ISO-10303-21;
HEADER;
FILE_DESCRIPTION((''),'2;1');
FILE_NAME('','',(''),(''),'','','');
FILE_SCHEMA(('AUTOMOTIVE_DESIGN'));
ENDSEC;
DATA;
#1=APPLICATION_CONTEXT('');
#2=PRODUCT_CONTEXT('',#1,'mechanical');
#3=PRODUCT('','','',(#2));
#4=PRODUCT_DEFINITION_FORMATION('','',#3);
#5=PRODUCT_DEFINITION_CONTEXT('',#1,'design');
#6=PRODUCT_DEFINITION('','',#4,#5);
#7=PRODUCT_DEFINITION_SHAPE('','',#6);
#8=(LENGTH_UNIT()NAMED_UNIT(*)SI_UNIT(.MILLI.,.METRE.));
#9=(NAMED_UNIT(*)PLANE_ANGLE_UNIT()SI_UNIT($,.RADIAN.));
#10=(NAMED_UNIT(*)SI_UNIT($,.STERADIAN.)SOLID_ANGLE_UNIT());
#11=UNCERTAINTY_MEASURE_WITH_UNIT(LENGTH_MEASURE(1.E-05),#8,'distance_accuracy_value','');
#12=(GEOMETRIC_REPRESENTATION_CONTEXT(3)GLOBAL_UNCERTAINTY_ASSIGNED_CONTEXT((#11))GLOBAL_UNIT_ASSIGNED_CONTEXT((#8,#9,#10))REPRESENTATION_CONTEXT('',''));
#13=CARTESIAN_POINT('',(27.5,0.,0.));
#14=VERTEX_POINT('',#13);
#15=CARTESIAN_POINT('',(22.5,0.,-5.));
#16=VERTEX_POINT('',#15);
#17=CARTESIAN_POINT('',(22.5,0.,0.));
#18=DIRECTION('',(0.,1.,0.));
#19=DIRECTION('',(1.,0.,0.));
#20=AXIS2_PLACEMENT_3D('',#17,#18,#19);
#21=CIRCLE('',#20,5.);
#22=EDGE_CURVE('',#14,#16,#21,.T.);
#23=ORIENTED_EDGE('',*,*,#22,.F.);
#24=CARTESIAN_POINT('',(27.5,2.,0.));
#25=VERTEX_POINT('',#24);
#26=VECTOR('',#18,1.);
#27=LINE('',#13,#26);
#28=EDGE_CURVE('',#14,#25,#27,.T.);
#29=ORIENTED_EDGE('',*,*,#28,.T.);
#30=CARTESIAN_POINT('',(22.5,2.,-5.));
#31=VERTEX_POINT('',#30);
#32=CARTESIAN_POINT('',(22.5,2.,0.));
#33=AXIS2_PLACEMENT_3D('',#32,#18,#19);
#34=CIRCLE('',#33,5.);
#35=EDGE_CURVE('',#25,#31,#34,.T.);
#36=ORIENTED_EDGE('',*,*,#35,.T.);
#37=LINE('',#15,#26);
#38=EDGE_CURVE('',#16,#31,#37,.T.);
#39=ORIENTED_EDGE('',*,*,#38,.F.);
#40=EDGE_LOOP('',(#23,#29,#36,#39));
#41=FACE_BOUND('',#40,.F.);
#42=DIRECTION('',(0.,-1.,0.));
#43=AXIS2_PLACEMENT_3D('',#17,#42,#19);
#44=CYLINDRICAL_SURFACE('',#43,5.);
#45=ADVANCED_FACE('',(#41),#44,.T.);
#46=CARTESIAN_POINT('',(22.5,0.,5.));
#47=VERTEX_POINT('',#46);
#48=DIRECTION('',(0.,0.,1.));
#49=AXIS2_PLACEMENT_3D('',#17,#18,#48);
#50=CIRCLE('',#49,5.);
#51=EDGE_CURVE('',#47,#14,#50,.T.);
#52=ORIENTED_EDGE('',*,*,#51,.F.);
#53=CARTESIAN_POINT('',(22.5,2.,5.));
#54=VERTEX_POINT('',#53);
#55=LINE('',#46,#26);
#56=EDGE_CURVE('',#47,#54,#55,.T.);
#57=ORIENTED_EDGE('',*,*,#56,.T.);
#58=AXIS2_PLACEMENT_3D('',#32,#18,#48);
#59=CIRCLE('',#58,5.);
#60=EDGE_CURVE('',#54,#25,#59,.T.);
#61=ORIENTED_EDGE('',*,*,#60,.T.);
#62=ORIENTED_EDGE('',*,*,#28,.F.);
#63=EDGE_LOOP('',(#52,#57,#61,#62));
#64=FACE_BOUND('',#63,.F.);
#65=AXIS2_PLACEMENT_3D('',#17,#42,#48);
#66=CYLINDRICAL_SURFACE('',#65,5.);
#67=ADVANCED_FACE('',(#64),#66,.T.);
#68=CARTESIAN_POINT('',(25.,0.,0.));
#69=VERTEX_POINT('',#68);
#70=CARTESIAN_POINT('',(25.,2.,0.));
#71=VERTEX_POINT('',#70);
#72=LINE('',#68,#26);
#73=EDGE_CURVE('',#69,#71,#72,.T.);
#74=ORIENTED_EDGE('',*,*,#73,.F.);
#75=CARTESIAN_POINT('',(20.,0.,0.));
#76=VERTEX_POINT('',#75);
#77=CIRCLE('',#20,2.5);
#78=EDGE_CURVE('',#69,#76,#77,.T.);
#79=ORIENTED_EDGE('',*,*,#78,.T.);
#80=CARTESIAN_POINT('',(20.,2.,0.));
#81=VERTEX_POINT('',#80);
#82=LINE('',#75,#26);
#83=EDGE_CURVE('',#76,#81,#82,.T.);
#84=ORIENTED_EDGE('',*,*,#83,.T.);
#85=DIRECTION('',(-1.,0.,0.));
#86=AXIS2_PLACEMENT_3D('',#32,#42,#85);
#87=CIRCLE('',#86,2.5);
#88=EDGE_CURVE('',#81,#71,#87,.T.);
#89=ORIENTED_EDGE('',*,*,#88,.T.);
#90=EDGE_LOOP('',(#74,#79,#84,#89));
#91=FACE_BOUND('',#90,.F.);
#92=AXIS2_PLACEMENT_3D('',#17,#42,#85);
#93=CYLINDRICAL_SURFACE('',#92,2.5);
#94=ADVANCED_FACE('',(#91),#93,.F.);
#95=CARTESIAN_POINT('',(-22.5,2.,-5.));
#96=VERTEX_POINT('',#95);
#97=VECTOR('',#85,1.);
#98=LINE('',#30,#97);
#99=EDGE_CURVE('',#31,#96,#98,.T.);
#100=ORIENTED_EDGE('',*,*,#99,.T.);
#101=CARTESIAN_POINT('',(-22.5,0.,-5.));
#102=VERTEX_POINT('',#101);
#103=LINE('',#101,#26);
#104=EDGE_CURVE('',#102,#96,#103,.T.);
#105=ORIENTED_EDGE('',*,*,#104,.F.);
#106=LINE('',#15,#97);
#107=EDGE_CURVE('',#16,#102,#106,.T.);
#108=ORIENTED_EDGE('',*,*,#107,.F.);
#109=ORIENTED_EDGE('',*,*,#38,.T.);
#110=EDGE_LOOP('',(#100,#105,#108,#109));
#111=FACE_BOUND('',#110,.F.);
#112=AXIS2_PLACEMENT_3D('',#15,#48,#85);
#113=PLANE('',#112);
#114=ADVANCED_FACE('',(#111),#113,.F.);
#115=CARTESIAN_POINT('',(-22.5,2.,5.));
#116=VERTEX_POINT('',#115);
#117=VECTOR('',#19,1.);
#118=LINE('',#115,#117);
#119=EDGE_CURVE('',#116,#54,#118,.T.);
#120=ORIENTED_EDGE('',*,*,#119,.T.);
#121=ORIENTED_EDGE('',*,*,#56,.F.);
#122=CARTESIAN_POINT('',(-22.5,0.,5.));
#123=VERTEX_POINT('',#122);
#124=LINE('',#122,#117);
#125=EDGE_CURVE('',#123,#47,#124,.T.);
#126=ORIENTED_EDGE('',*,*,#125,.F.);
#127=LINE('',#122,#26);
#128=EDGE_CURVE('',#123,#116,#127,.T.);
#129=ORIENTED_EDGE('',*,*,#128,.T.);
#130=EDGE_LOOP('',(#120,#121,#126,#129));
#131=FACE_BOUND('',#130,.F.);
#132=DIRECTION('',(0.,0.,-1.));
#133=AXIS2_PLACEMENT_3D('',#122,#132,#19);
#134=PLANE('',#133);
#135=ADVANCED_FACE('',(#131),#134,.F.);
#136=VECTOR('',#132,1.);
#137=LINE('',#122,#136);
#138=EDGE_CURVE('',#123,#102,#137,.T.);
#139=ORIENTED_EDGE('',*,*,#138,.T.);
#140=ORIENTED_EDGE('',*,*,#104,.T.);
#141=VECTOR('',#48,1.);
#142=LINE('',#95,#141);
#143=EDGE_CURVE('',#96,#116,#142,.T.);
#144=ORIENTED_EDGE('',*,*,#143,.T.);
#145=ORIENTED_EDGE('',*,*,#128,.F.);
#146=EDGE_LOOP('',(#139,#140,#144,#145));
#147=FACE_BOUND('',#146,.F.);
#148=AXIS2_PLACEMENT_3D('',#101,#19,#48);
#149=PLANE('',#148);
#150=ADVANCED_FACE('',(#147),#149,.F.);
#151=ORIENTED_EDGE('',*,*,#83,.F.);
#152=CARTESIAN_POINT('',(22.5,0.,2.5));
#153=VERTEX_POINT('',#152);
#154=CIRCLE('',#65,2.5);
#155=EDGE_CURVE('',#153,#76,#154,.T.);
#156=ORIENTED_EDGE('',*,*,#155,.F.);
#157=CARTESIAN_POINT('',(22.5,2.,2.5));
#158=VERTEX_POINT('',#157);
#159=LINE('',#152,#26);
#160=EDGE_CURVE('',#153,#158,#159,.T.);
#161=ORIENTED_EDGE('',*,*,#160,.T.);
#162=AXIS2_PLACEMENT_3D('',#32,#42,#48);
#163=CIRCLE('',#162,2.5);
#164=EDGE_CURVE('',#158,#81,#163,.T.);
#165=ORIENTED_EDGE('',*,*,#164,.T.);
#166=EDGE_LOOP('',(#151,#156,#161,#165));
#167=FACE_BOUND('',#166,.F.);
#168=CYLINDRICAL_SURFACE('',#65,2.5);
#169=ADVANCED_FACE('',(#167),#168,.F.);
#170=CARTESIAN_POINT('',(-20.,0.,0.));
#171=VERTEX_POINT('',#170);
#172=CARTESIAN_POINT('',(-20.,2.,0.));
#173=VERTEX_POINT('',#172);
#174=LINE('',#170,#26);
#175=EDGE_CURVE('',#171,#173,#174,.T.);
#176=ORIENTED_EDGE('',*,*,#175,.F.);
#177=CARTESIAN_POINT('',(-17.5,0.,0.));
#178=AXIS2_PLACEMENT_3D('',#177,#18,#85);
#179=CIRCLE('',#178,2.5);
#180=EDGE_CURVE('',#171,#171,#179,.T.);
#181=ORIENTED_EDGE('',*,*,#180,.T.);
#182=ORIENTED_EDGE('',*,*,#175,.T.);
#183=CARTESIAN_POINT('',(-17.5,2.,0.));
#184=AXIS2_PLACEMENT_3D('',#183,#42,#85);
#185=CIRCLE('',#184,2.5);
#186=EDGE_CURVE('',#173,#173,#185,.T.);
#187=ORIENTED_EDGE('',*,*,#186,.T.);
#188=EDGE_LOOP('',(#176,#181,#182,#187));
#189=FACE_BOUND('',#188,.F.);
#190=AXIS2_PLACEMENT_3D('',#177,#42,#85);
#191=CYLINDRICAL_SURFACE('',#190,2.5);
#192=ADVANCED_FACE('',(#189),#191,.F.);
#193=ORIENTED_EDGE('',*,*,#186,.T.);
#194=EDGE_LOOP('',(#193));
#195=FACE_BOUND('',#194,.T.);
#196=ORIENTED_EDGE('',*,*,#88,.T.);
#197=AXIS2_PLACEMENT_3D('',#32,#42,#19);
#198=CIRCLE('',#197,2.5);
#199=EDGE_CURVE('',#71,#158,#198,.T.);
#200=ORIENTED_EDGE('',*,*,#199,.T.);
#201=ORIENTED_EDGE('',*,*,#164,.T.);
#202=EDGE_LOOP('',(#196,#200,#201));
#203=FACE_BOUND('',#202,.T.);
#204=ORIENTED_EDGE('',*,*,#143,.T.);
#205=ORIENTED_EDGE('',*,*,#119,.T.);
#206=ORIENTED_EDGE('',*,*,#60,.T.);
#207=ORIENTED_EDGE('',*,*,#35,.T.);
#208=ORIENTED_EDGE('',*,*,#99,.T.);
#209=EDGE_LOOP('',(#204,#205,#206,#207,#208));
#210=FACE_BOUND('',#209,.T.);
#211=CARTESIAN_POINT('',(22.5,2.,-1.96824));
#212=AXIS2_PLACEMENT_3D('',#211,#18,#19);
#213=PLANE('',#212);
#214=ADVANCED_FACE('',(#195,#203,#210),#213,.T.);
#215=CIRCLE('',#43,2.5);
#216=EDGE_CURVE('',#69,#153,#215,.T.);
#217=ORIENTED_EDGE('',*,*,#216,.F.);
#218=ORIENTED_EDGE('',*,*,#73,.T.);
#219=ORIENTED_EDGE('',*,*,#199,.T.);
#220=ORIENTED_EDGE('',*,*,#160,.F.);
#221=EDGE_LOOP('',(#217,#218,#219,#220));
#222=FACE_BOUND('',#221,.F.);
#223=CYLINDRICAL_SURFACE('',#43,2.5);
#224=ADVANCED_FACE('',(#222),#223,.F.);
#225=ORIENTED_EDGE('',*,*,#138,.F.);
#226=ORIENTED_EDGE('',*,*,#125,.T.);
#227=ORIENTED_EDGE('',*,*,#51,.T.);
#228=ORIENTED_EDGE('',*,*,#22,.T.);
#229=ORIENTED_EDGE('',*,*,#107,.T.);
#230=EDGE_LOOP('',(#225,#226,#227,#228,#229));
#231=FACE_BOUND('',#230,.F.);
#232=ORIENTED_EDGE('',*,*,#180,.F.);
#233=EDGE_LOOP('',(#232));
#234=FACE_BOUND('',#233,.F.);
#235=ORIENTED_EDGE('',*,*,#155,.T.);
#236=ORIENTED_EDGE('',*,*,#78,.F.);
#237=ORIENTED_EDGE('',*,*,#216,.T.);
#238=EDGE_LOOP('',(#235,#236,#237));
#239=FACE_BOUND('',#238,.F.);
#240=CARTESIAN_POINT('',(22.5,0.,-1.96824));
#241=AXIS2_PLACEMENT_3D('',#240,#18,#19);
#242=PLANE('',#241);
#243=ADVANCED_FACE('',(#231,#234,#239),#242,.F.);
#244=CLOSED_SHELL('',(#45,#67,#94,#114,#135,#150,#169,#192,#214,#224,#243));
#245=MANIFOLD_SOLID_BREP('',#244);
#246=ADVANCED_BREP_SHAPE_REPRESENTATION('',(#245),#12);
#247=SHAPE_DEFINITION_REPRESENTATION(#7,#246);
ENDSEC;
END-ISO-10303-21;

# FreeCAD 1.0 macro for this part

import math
import FreeCAD as App
import Part
import Sketcher
Q = App.Units.Quantity

doc = App.newDocument("Part")
body = doc.addObject("PartDesign::Body", "Body")

sketch1 = body.newObject("Sketcher::SketchObject", "Sketch")
sketch1.AttachmentSupport = (doc.getObject("XZ_Plane"), [""])
sketch1.MapMode = "FlatFace"
sketch1.addGeometry(Part.LineSegment(App.Vector(25, 0, 0), App.Vector(27.5, 0, 0)), False)
sketch1.addGeometry(Part.ArcOfCircle(Part.Circle(App.Vector(22.5, 0, 0), App.Vector(0, 0, 1), 5), math.radians(180), math.radians(360)), False)
sketch1.addGeometry(Part.LineSegment(App.Vector(17.5, 0, 0), App.Vector(20, 0, 0)), False)
sketch1.addGeometry(Part.ArcOfCircle(Part.Circle(App.Vector(22.5, 0, 0), App.Vector(0, 0, 1), 2.5), math.radians(180), math.radians(360)), False)
sketch1.addConstraint(Sketcher.Constraint("Coincident", 0, 2, 1, 2))
sketch1.addConstraint(Sketcher.Constraint("Coincident", 1, 1, 2, 1))
sketch1.addConstraint(Sketcher.Constraint("Coincident", 2, 2, 3, 1))
sketch1.addConstraint(Sketcher.Constraint("Coincident", 3, 2, 0, 1))
sketch1.addConstraint(Sketcher.Constraint("Horizontal", 0))
sketch1.addConstraint(Sketcher.Constraint("Horizontal", 2))
sketch1.addConstraint(Sketcher.Constraint("Coincident", 3, 3, 1, 3))
sketch1.addConstraint(Sketcher.Constraint("PointOnObject", 1, 3, -1))
sketch1.addConstraint(Sketcher.Constraint("PointOnObject", 0, 2, -1))
sketch1.addConstraint(Sketcher.Constraint("PointOnObject", 1, 1, -1))
sketch1.addConstraint(Sketcher.Constraint("Radius", 1, Q("5 mm")))
sketch1.addConstraint(Sketcher.Constraint("Radius", 3, Q("2.5 mm")))
sketch1.addConstraint(Sketcher.Constraint("DistanceX", -1, 1, 2, 2, Q("20 mm")))
pad1 = body.newObject("PartDesign::Pad", "Pad")
pad1.Profile = sketch1
pad1.Length = 2
pad1.Reversed = True
body2 = doc.addObject("PartDesign::Body", "Body001")

sketch2 = body2.newObject("Sketcher::SketchObject", "Sketch001")
sketch2.AttachmentSupport = (doc.getObject("XZ_Plane001"), [""])
sketch2.MapMode = "FlatFace"
sketch2.addGeometry(Part.LineSegment(App.Vector(-22.5, 5, 0), App.Vector(22.5, 5, 0)), False)
sketch2.addGeometry(Part.ArcOfCircle(Part.Circle(App.Vector(22.5, 0, 0), App.Vector(0, 0, 1), 5), math.radians(90), math.radians(180)), False)
sketch2.addGeometry(Part.LineSegment(App.Vector(17.5, 0, 0), App.Vector(-15, 0, 0)), False)
sketch2.addGeometry(Part.ArcOfCircle(Part.Circle(App.Vector(-17.5, 0, 0), App.Vector(0, 0, 1), 2.5), math.radians(0), math.radians(180)), False)
sketch2.addGeometry(Part.LineSegment(App.Vector(-20, 0, 0), App.Vector(-22.5, 0, 0)), False)
sketch2.addGeometry(Part.LineSegment(App.Vector(-22.5, 0, 0), App.Vector(-22.5, 5, 0)), False)
sketch2.addConstraint(Sketcher.Constraint("Tangent", 0, 2, 1, 1))
sketch2.addConstraint(Sketcher.Constraint("Coincident", 1, 2, 2, 1))
sketch2.addConstraint(Sketcher.Constraint("Coincident", 2, 2, 3, 1))
sketch2.addConstraint(Sketcher.Constraint("Coincident", 3, 2, 4, 1))
sketch2.addConstraint(Sketcher.Constraint("Coincident", 4, 2, 5, 1))
sketch2.addConstraint(Sketcher.Constraint("Coincident", 5, 2, 0, 1))
sketch2.addConstraint(Sketcher.Constraint("Horizontal", 0))
sketch2.addConstraint(Sketcher.Constraint("Horizontal", 2))
sketch2.addConstraint(Sketcher.Constraint("Horizontal", 4))
sketch2.addConstraint(Sketcher.Constraint("Vertical", 5))
sketch2.addConstraint(Sketcher.Constraint("PointOnObject", 1, 3, -1))
sketch2.addConstraint(Sketcher.Constraint("PointOnObject", 3, 3, -1))
sketch2.addConstraint(Sketcher.Constraint("PointOnObject", 1, 2, -1))
sketch2.addConstraint(Sketcher.Constraint("PointOnObject", 3, 2, -1))
sketch2.addConstraint(Sketcher.Constraint("Radius", 1, Q("5 mm")))
sketch2.addConstraint(Sketcher.Constraint("Radius", 3, Q("2.5 mm")))
sketch2.addConstraint(Sketcher.Constraint("DistanceX", 0, 1, 0, 2, Q("45 mm")))
sketch2.addConstraint(Sketcher.Constraint("DistanceX", 2, 2, 2, 1, Q("32.5 mm")))
sketch2.addConstraint(Sketcher.Constraint("DistanceX", 2, 2, -1, 1, Q("15 mm")))
pad2 = body2.newObject("PartDesign::Pad", "Pad001")
pad2.Profile = sketch2
pad2.Length = 2
pad2.Reversed = True
body.AllowCompound = True
doc.recompute()

boolean = body.newObject("PartDesign::Boolean", "Boolean")
boolean.Type = "Fuse"
boolean.addObjects([body2])

sketch3 = body.newObject("Sketcher::SketchObject", "Sketch002")
sketch3.AttachmentSupport = (doc.getObject("XZ_Plane"), [""])
sketch3.MapMode = "FlatFace"
sketch3.addGeometry(Part.LineSegment(App.Vector(-15, 0, 0), App.Vector(17.5, 0, 0)), False)
sketch3.addGeometry(Part.ArcOfCircle(Part.Circle(App.Vector(22.5, 0, 0), App.Vector(0, 0, 1), 5), math.radians(90), math.radians(180)), False)
sketch3.addGeometry(Part.ArcOfCircle(Part.Circle(App.Vector(22.5, 0, 0), App.Vector(0, 0, 1), 5), math.radians(0), math.radians(90)), False)
sketch3.addGeometry(Part.ArcOfCircle(Part.Circle(App.Vector(22.5, 0, 0), App.Vector(0, 0, 1), 5), math.radians(-90), math.radians(0)), False)
sketch3.addGeometry(Part.LineSegment(App.Vector(22.5, -5, 0), App.Vector(-22.5, -5, 0)), False)
sketch3.addGeometry(Part.LineSegment(App.Vector(-22.5, -5, 0), App.Vector(-22.5, 0, 0)), False)
sketch3.addGeometry(Part.LineSegment(App.Vector(-22.5, 0, 0), App.Vector(-20, 0, 0)), False)
sketch3.addGeometry(Part.ArcOfCircle(Part.Circle(App.Vector(-17.5, 0, 0), App.Vector(0, 0, 1), 2.5), math.radians(180), math.radians(360)), False)
sketch3.addGeometry(Part.ArcOfCircle(Part.Circle(App.Vector(22.5, 0, 0), App.Vector(0, 0, 1), 2.5), math.radians(-90), math.radians(0)), False)
sketch3.addGeometry(Part.ArcOfCircle(Part.Circle(App.Vector(22.5, 0, 0), App.Vector(0, 0, 1), 2.5), math.radians(0), math.radians(90)), False)
sketch3.addGeometry(Part.ArcOfCircle(Part.Circle(App.Vector(22.5, 0, 0), App.Vector(0, 0, 1), 2.5), math.radians(90), math.radians(180)), False)
sketch3.addGeometry(Part.ArcOfCircle(Part.Circle(App.Vector(22.5, 0, 0), App.Vector(0, 0, 1), 2.5), math.radians(180), math.radians(270)), False)
sketch3.addConstraint(Sketcher.Constraint("Coincident", 0, 2, 1, 2))
sketch3.addConstraint(Sketcher.Constraint("Tangent", 1, 1, 2, 2))
sketch3.addConstraint(Sketcher.Constraint("Tangent", 2, 1, 3, 2))
sketch3.addConstraint(Sketcher.Constraint("Tangent", 3, 1, 4, 1))
sketch3.addConstraint(Sketcher.Constraint("Coincident", 4, 2, 5, 1))
sketch3.addConstraint(Sketcher.Constraint("Coincident", 5, 2, 6, 1))
sketch3.addConstraint(Sketcher.Constraint("Coincident", 6, 2, 7, 1))
sketch3.addConstraint(Sketcher.Constraint("Coincident", 7, 2, 0, 1))
sketch3.addConstraint(Sketcher.Constraint("Tangent", 8, 2, 9, 1))
sketch3.addConstraint(Sketcher.Constraint("Tangent", 9, 2, 10, 1))
sketch3.addConstraint(Sketcher.Constraint("Tangent", 10, 2, 11, 1))
sketch3.addConstraint(Sketcher.Constraint("Tangent", 11, 2, 8, 1))
sketch3.addConstraint(Sketcher.Constraint("Horizontal", 0))
sketch3.addConstraint(Sketcher.Constraint("Horizontal", 4))
sketch3.addConstraint(Sketcher.Constraint("Vertical", 5))
sketch3.addConstraint(Sketcher.Constraint("Horizontal", 6))
sketch3.addConstraint(Sketcher.Constraint("Coincident", 3, 3, 1, 3))
sketch3.addConstraint(Sketcher.Constraint("Coincident", 8, 3, 1, 3))
sketch3.addConstraint(Sketcher.Constraint("Equal", 7, 8))
sketch3.addConstraint(Sketcher.Constraint("Equal", 8, 9))
sketch3.addConstraint(Sketcher.Constraint("Symmetric", 1, 1, 4, 2, -1, 1))
sketch3.addConstraint(Sketcher.Constraint("Symmetric", 6, 2, 10, 2, -1, 1))
sketch3.addConstraint(Sketcher.Constraint("PointOnObject", 7, 3, -1))
sketch3.addConstraint(Sketcher.Constraint("PointOnObject", 0, 2, -1))
sketch3.addConstraint(Sketcher.Constraint("PointOnObject", 2, 1, -1))
sketch3.addConstraint(Sketcher.Constraint("PointOnObject", 5, 2, -1))
sketch3.addConstraint(Sketcher.Constraint("PointOnObject", 8, 2, -1))
sketch3.addConstraint(Sketcher.Constraint("Vertical", 11, 3, 1, 1))
sketch3.addConstraint(Sketcher.Constraint("Vertical", 3, 1, 9, 2))
sketch3.addConstraint(Sketcher.Constraint("Vertical", 9, 2, 11, 2))
sketch3.addConstraint(Sketcher.Constraint("Radius", 1, Q("5 mm")))
sketch3.addConstraint(Sketcher.Constraint("Radius", 7, Q("2.5 mm")))
sketch3.addConstraint(Sketcher.Constraint("DistanceX", 4, 2, 4, 1, Q("45 mm")))
pad3 = body.newObject("PartDesign::Pad", "Pad002")
pad3.Profile = sketch3
pad3.Length = 2
pad3.Reversed = True

doc.recompute()
